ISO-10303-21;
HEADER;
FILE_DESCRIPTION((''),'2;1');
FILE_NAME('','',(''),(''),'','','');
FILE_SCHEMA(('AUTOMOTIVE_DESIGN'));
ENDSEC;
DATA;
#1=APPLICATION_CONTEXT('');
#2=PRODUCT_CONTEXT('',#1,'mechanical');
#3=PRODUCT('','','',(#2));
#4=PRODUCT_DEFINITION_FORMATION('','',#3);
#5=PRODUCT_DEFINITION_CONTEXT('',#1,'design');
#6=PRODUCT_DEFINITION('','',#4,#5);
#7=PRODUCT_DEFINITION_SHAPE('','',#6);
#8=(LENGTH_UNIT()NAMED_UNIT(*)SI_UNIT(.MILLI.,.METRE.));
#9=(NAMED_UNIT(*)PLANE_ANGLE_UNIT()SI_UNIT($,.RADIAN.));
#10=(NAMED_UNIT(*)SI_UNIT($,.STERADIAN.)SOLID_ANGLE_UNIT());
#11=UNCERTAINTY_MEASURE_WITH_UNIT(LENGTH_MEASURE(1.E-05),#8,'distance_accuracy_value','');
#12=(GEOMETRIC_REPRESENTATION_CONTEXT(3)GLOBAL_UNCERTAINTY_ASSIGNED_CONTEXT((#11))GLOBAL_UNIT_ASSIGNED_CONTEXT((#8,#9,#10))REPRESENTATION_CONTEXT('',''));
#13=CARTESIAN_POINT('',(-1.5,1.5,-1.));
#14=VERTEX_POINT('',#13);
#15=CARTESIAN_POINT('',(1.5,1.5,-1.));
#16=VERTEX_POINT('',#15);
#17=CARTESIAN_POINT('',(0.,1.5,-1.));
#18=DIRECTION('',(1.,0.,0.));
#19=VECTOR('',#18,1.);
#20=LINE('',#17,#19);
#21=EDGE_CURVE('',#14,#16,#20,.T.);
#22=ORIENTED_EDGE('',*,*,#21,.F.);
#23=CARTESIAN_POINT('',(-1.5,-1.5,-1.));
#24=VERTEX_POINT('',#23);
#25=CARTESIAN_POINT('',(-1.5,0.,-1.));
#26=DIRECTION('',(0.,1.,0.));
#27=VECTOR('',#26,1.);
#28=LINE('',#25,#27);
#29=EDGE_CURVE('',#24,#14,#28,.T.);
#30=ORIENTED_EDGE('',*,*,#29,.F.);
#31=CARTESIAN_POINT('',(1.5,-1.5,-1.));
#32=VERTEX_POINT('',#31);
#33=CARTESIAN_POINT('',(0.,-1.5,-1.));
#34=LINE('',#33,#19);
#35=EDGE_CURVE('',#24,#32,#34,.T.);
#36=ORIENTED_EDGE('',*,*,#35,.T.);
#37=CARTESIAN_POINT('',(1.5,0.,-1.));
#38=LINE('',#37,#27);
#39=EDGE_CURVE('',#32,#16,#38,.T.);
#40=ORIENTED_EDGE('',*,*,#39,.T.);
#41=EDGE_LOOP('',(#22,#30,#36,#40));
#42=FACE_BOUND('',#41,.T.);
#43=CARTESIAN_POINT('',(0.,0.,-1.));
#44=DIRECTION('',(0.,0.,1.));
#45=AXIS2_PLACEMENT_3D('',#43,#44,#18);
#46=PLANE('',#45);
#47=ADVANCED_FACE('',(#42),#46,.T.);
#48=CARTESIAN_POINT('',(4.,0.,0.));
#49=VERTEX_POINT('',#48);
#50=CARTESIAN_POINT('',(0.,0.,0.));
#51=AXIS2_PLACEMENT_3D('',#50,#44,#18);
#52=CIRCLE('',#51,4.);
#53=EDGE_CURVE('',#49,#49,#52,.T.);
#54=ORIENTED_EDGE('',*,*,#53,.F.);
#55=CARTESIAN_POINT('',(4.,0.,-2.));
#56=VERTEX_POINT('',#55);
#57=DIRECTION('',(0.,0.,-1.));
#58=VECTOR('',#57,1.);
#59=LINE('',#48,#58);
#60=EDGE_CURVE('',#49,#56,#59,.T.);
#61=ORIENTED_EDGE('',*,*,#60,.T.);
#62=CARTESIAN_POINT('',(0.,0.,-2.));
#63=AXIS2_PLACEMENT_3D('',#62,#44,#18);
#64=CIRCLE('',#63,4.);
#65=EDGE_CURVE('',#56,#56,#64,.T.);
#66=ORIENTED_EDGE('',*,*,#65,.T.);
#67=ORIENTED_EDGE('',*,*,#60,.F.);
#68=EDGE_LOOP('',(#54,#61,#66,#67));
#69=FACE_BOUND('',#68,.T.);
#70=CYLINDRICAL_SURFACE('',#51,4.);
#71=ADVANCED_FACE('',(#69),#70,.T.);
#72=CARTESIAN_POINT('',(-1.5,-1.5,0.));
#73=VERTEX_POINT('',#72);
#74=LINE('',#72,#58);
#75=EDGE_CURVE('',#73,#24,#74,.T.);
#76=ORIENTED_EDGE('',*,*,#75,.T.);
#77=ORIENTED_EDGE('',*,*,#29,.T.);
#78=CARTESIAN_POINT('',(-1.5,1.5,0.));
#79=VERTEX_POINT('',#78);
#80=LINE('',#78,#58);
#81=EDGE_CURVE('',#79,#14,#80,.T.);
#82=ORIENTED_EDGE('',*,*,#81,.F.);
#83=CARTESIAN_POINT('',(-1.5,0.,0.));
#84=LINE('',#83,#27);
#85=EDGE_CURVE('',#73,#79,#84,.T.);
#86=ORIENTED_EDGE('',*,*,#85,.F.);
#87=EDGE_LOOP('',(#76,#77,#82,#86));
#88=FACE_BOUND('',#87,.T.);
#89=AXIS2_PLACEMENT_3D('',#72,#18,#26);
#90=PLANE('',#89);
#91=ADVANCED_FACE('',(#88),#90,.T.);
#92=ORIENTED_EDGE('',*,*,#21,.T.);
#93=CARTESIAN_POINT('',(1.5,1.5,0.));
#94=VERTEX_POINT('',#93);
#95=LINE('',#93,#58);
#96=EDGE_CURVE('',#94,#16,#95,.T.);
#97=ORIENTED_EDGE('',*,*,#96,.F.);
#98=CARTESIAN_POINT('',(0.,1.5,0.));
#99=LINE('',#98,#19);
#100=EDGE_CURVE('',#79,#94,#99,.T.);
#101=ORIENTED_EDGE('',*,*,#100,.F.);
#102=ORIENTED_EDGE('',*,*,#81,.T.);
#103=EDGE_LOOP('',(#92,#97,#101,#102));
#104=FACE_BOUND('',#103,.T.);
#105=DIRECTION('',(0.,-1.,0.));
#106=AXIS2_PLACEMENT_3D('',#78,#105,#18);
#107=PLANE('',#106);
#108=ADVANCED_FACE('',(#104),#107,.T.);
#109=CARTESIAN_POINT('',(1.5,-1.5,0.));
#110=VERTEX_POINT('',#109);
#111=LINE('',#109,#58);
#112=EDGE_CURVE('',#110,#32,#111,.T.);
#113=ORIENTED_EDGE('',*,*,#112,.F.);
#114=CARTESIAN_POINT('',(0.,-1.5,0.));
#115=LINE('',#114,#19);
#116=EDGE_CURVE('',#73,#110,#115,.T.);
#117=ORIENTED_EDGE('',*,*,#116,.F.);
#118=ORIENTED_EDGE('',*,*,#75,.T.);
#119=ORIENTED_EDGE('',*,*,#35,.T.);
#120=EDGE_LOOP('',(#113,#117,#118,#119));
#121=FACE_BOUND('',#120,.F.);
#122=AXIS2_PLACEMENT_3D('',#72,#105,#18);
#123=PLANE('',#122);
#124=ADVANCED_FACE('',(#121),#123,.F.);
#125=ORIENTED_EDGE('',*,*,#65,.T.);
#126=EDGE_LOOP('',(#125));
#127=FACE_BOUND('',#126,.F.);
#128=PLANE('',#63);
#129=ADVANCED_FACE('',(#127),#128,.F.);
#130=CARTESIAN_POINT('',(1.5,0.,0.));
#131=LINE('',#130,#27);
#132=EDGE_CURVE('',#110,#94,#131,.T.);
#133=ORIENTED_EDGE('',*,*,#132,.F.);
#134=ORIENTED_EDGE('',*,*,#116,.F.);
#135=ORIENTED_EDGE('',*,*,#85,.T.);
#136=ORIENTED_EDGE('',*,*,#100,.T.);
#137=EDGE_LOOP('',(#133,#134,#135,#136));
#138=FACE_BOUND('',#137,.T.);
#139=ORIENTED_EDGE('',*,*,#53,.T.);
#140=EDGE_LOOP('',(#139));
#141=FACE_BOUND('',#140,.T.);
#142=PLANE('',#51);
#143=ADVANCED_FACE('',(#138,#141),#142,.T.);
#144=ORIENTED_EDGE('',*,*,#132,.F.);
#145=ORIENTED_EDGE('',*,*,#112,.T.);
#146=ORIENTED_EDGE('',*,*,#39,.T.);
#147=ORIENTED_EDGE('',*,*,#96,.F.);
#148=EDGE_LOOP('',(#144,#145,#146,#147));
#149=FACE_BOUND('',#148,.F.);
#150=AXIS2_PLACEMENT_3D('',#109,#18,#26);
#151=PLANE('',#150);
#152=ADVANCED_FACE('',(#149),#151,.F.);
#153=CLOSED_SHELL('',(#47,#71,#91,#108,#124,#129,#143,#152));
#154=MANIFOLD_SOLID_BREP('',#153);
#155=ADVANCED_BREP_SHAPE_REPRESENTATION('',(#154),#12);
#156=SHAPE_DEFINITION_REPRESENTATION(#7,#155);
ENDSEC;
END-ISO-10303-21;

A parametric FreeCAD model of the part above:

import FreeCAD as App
import Part
import Sketcher


def add_polygon(sketch, points):
    """Adds a closed chain of lines whose ends are joined by coincident constraints."""
    first, n = sketch.GeometryCount, len(points)
    for a, b in zip(points, points[1:] + points[:1]):
        sketch.addGeometry(Part.LineSegment(App.Vector(*a, 0), App.Vector(*b, 0)), False)
    for i in range(n):
        sketch.addConstraint(Sketcher.Constraint("Coincident", first + i, 2, first + (i + 1) % n, 1))

doc = App.newDocument("Part")
params = doc.addObject("Spreadsheet::Sheet", "Params")
for row, (alias, value) in enumerate([
    ("sketch1_diameter", "8 mm"),
    ("pad1_length", "2 mm"),
    ("sketch2_width", "3 mm"),
    ("pocket1_length", "1 mm"),
], start=1):
    params.set(f"A{row}", alias)
    params.set(f"B{row}", "=" + value)
    params.setAlias(f"B{row}", alias)

body = doc.addObject("PartDesign::Body", "Body")

# Sketch on XY plane
sketch1 = body.newObject("Sketcher::SketchObject", "Sketch")
sketch1.AttachmentSupport = (doc.getObject("XY_Plane"), [""])
sketch1.MapMode = "FlatFace"
sketch1.addGeometry(Part.Circle(App.Vector(0, 0, 0), App.Vector(0, 0, 1), 4), False)
sketch1.addConstraint([
    Sketcher.Constraint("Coincident", 0, 3, -1, 1),
    Sketcher.Constraint("Diameter", 0, 8.0),
])
sketch1.setExpression("Constraints[1]", "Params.sketch1_diameter")
pad1 = body.newObject("PartDesign::Pad", "Pad")
pad1.Profile = sketch1
pad1.setExpression("Length", "Params.pad1_length")
pad1.Reversed = True

# Sketch on XY plane
sketch2 = body.newObject("Sketcher::SketchObject", "Sketch001")
sketch2.AttachmentSupport = (doc.getObject("XY_Plane"), [""])
sketch2.MapMode = "FlatFace"
add_polygon(sketch2, [(-1.5, 1.5), (-1.5, -1.5), (1.5, -1.5), (1.5, 1.5)])  # lines 0-3
sketch2.addConstraint([
    Sketcher.Constraint("Vertical", 0),
    Sketcher.Constraint("Horizontal", 1),
    Sketcher.Constraint("Vertical", 2),
    Sketcher.Constraint("Horizontal", 3),
    Sketcher.Constraint("Symmetric", 0, 2, 2, 2, -1, 1),
    Sketcher.Constraint("Equal", 3, 0),
    Sketcher.Constraint("DistanceX", 1, 1, 1, 2, 3.0),
])
sketch2.setExpression("Constraints[10]", "Params.sketch2_width")
pocket1 = body.newObject("PartDesign::Pocket", "Pocket")
pocket1.Profile = sketch2
pocket1.setExpression("Length", "Params.pocket1_length")

doc.recompute()
